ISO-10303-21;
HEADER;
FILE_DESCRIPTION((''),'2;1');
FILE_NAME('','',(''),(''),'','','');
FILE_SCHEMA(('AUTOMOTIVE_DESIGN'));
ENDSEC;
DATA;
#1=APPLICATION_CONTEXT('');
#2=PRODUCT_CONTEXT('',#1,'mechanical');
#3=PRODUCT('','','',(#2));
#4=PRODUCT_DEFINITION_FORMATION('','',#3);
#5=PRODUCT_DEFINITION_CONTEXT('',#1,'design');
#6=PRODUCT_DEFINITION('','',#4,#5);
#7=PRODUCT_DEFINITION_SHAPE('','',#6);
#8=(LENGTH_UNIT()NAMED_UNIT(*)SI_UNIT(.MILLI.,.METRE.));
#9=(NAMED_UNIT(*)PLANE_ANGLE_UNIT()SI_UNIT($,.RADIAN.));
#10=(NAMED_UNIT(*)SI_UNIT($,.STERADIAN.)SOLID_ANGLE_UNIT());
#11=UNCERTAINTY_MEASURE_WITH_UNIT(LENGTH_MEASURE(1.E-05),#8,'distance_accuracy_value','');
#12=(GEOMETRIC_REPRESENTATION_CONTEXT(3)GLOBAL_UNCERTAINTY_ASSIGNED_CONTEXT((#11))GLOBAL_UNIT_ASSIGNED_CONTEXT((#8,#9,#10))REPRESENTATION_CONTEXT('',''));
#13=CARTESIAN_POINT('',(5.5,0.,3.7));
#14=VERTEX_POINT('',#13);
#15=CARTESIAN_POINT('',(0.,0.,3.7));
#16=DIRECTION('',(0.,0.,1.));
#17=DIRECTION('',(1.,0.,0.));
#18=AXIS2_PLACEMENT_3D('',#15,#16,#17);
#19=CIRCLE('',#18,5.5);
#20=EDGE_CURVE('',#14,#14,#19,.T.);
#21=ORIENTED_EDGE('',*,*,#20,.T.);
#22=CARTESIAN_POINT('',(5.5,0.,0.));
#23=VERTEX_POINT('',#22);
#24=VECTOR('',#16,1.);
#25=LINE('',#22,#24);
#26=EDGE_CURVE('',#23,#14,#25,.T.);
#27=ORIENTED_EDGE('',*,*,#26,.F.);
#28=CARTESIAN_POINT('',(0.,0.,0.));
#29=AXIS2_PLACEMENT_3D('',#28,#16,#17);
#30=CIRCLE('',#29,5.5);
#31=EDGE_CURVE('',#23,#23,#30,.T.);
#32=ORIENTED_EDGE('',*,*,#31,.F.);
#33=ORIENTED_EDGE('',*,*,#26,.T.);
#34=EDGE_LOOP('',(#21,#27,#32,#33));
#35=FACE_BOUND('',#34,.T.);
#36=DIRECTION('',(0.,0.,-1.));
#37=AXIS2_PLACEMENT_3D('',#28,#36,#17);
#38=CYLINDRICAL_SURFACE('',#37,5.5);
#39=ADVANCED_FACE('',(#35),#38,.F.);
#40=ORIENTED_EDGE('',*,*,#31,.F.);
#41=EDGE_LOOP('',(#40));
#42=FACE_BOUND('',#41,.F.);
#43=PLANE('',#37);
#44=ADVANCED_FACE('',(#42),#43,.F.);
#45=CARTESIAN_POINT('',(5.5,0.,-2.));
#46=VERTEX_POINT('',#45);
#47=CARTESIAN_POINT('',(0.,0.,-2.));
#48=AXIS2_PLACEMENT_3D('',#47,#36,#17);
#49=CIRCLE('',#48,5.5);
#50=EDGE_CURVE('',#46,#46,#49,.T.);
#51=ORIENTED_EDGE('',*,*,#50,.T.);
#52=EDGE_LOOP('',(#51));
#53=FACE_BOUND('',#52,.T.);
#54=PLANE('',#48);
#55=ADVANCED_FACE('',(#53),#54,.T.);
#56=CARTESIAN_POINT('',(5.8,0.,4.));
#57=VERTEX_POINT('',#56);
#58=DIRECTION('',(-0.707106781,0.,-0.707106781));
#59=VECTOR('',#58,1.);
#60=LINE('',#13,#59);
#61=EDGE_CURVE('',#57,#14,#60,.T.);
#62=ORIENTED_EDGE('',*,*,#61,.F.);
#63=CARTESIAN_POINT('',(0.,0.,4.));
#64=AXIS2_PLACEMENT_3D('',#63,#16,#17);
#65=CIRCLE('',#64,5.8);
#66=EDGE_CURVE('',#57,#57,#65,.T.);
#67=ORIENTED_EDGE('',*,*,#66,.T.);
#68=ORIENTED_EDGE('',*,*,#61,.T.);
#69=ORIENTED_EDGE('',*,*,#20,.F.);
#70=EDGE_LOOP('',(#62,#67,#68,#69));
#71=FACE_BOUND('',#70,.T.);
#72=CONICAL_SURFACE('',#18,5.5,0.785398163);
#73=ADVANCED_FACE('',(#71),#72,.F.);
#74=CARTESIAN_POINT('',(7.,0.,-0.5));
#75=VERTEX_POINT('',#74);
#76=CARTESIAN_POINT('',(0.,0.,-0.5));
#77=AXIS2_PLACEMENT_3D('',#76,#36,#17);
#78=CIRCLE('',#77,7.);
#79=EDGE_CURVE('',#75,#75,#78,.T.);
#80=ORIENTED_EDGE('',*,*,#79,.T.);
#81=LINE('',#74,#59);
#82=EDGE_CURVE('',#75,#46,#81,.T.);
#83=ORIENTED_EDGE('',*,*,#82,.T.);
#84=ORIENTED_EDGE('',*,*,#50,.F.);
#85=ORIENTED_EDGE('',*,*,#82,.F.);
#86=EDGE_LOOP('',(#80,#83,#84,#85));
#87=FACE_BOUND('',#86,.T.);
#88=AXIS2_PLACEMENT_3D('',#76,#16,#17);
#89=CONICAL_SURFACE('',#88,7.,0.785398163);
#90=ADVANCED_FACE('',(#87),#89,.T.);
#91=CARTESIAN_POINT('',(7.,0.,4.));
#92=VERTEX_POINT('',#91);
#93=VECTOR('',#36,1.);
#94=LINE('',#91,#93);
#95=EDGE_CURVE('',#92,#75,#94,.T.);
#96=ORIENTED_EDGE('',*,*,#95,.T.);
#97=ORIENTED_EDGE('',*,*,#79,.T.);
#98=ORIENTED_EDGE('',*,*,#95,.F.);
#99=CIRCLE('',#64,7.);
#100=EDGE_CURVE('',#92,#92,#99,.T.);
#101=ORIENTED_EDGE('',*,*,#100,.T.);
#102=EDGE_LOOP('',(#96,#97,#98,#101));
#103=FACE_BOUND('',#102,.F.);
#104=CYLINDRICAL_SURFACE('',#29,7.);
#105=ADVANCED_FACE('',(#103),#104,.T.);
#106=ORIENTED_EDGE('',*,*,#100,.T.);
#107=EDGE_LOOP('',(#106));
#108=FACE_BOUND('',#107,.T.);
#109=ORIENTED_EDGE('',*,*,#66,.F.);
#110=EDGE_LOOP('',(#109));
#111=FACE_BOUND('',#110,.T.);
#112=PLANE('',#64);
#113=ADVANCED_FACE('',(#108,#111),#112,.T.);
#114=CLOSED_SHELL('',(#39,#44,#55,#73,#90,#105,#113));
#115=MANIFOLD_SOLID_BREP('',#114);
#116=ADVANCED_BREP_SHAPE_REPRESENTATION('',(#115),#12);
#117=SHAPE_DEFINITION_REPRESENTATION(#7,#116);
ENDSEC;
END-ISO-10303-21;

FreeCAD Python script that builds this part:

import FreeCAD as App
import Part
import Sketcher


def edges_at(feature, points):
    """Names of the edges that pass closest to the given points."""
    edges = feature.Shape.Edges
    near = lambda p: min(range(len(edges)), key=lambda i: edges[i].distToShape(Part.Vertex(*p))[0])
    return sorted({f"Edge{near(p) + 1}" for p in points})

doc = App.newDocument("Part")
params = doc.addObject("Spreadsheet::Sheet", "Params")
for row, (alias, value) in enumerate([
    ("sketch1_diameter", "14 mm"),
    ("sketch1_diameter2", "11 mm"),
    ("pad1_length", "4 mm"),
    ("sketch2_diameter", "14 mm"),
    ("pad2_length", "2 mm"),
    ("chamfer_size", "1.5 mm"),
    ("chamfer2_size", "0.3 mm"),
], start=1):
    params.set(f"A{row}", alias)
    params.set(f"B{row}", "=" + value)
    params.setAlias(f"B{row}", alias)

body = doc.addObject("PartDesign::Body", "Body")

# Sketch on XY plane
sketch1 = doc.addObject("Sketcher::SketchObject", "Sketch")
body.addObject(sketch1)
sketch1.AttachmentSupport = (doc.XY_Plane, [""])
sketch1.MapMode = "FlatFace"
sketch1.addGeometry(Part.Circle(App.Vector(0, 0, 0), App.Vector(0, 0, 1), 7), False)
sketch1.addGeometry(Part.Circle(App.Vector(0, 0, 0), App.Vector(0, 0, 1), 6), False)
sketch1.addConstraint(Sketcher.Constraint("Coincident", 0, 3, -1, 1))
sketch1.addConstraint(Sketcher.Constraint("Coincident", 1, 3, -1, 1))
sketch1.addConstraint(Sketcher.Constraint("Diameter", 0, 14.0))
sketch1.addConstraint(Sketcher.Constraint("Diameter", 1, 11.0))
sketch1.setExpression("Constraints[2]", "Params.sketch1_diameter")
sketch1.setExpression("Constraints[3]", "Params.sketch1_diameter2")
pad1 = doc.addObject("PartDesign::Pad", "Pad")
body.addObject(pad1)
pad1.Profile = sketch1
pad1.setExpression("Length", "Params.pad1_length")

# Sketch on XY plane
sketch2 = doc.addObject("Sketcher::SketchObject", "Sketch001")
body.addObject(sketch2)
sketch2.AttachmentSupport = (doc.XY_Plane, [""])
sketch2.MapMode = "FlatFace"
sketch2.addGeometry(Part.Circle(App.Vector(0, 0, 0), App.Vector(0, 0, 1), 7), False)
sketch2.addConstraint(Sketcher.Constraint("Coincident", 0, 3, -1, 1))
sketch2.addConstraint(Sketcher.Constraint("Diameter", 0, 14.0))
sketch2.setExpression("Constraints[1]", "Params.sketch2_diameter")
pad2 = doc.addObject("PartDesign::Pad", "Pad001")
body.addObject(pad2)
pad2.Profile = sketch2
pad2.setExpression("Length", "Params.pad2_length")
pad2.Reversed = True
doc.recompute()

chamfer = doc.addObject("PartDesign::Chamfer", "Chamfer")
body.addObject(chamfer)
chamfer.Base = (pad2, edges_at(pad2, [(-7, 0, -2)]))
chamfer.setExpression("Size", "Params.chamfer_size")
doc.recompute()

chamfer2 = doc.addObject("PartDesign::Chamfer", "Chamfer001")
body.addObject(chamfer2)
chamfer2.Base = (chamfer, edges_at(chamfer, [(-5.5, 0, 4)]))
chamfer2.setExpression("Size", "Params.chamfer2_size")

doc.recompute()
